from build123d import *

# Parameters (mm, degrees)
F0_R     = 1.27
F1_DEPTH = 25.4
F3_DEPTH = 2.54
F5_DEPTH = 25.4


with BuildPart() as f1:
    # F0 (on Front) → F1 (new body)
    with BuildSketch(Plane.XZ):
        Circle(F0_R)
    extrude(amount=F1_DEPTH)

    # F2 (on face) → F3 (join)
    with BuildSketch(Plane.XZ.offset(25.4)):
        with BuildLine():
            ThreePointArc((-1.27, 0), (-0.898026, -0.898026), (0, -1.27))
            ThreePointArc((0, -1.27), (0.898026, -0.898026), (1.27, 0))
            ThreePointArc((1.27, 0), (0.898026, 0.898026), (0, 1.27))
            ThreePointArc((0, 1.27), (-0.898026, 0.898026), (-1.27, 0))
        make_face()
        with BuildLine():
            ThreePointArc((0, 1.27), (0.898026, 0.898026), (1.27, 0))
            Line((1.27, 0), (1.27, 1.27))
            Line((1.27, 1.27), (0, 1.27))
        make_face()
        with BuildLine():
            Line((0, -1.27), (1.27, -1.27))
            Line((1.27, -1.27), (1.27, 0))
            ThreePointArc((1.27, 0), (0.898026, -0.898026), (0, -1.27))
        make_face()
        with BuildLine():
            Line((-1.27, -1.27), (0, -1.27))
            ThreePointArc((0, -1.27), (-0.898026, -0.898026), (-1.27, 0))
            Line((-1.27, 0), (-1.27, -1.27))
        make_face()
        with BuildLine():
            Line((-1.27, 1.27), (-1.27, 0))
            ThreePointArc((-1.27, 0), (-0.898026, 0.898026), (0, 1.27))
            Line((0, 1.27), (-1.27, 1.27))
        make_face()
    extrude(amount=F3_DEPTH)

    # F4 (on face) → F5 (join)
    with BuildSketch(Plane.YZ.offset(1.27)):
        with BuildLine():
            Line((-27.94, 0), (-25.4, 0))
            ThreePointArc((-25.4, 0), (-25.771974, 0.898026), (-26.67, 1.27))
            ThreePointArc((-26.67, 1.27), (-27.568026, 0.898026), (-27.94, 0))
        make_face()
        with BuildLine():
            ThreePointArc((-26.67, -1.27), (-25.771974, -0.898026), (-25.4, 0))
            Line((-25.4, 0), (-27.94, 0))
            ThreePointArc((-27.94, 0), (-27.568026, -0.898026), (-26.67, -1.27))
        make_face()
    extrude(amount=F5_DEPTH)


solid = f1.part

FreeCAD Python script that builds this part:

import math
import FreeCAD as App
import Part
import Sketcher

V = App.Vector
Q = App.Units.Quantity

doc = App.newDocument("Part")
params = doc.addObject("Spreadsheet::Sheet", "Params")
for row, (alias, value) in enumerate([
    ("sketch1_diameter", "0.1 in"),
    ("pad1_length", "1 in"),
    ("sketch2_width", "0.1 in"),
    ("pad2_length", "0.1 in"),
    ("sketch3_radius", "0.0499999 in"),
    ("pad3_length", "1 in"),
], start=1):
    params.set(f"A{row}", alias)
    params.set(f"B{row}", "=" + value)
    params.setAlias(f"B{row}", alias)

body = doc.addObject("PartDesign::Body", "Body")

# Sketch on XZ plane
sketch1 = body.newObject("Sketcher::SketchObject", "Sketch")
sketch1.AttachmentSupport = (doc.getObject("XZ_Plane"), [""])
sketch1.MapMode = "FlatFace"
sketch1.addGeometry(Part.Circle(V(0, 0, 0), V(0, 0, 1), 1.27), False)
sketch1.addConstraint(Sketcher.Constraint("Coincident", 0, 3, -1, 1))
sketch1.addConstraint(Sketcher.Constraint("Diameter", 0, Q("0.1 in")))
sketch1.setExpression("Constraints[1]", "Params.sketch1_diameter")
pad1 = body.newObject("PartDesign::Pad", "Pad")
pad1.Profile = sketch1
pad1.setExpression("Length", "Params.pad1_length")

# Sketch on XZ plane
sketch2 = body.newObject("Sketcher::SketchObject", "Sketch001")
sketch2.AttachmentSupport = (doc.getObject("XZ_Plane"), [""])
sketch2.MapMode = "FlatFace"
sketch2.AttachmentOffset = App.Placement(V(0, 0, 1 * 25.4), App.Rotation())
sketch2.addGeometry(Part.LineSegment(V(1.27, -1.27, 0), V(1.27, 1.27, 0)), False)
sketch2.addGeometry(Part.LineSegment(V(1.27, 1.27, 0), V(-1.27, 1.27, 0)), False)
sketch2.addGeometry(Part.LineSegment(V(-1.27, 1.27, 0), V(-1.27, -1.27, 0)), False)
sketch2.addGeometry(Part.LineSegment(V(-1.27, -1.27, 0), V(1.27, -1.27, 0)), False)
sketch2.addConstraint(Sketcher.Constraint("Coincident", 0, 2, 1, 1))
sketch2.addConstraint(Sketcher.Constraint("Coincident", 1, 2, 2, 1))
sketch2.addConstraint(Sketcher.Constraint("Coincident", 2, 2, 3, 1))
sketch2.addConstraint(Sketcher.Constraint("Coincident", 3, 2, 0, 1))
sketch2.addConstraint(Sketcher.Constraint("Vertical", 0))
sketch2.addConstraint(Sketcher.Constraint("Horizontal", 1))
sketch2.addConstraint(Sketcher.Constraint("Vertical", 2))
sketch2.addConstraint(Sketcher.Constraint("Horizontal", 3))
sketch2.addConstraint(Sketcher.Constraint("Symmetric", 0, 2, 2, 2, -1, 1))
sketch2.addConstraint(Sketcher.Constraint("Equal", 3, 0))
sketch2.addConstraint(Sketcher.Constraint("DistanceX", 1, 2, 1, 1, Q("0.1 in")))
sketch2.setExpression("Constraints[10]", "Params.sketch2_width")
pad2 = body.newObject("PartDesign::Pad", "Pad001")
pad2.Profile = sketch2
pad2.setExpression("Length", "Params.pad2_length")

# Sketch on YZ plane
sketch3 = body.newObject("Sketcher::SketchObject", "Sketch002")
sketch3.AttachmentSupport = (doc.getObject("YZ_Plane"), [""])
sketch3.MapMode = "FlatFace"
sketch3.AttachmentOffset = App.Placement(V(0, 0, 0.05 * 25.4), App.Rotation())
sketch3.addGeometry(Part.ArcOfCircle(Part.Circle(V(-26.669999, 0.000001, 0), V(0, 0, 1), 1.269999), math.radians(-0.00006), math.radians(90.00006)), False)
sketch3.addGeometry(Part.ArcOfCircle(Part.Circle(V(-26.670001, 0.000001, 0), V(0, 0, 1), 1.269999), math.radians(89.99994), math.radians(180.00006)), False)
sketch3.addGeometry(Part.ArcOfCircle(Part.Circle(V(-26.670001, -0.000001, 0), V(0, 0, 1), 1.269999), math.radians(179.99994), math.radians(270.00006)), False)
sketch3.addGeometry(Part.ArcOfCircle(Part.Circle(V(-26.669999, -0.000001, 0), V(0, 0, 1), 1.269999), math.radians(-90.00006), math.radians(0.00006)), False)
sketch3.addConstraint(Sketcher.Constraint("Coincident", 0, 2, 1, 1))
sketch3.addConstraint(Sketcher.Constraint("Coincident", 1, 2, 2, 1))
sketch3.addConstraint(Sketcher.Constraint("Coincident", 2, 2, 3, 1))
sketch3.addConstraint(Sketcher.Constraint("Coincident", 3, 2, 0, 1))
sketch3.addConstraint(Sketcher.Constraint("Coincident", 1, 3, 0, 3))
sketch3.addConstraint(Sketcher.Constraint("Coincident", 2, 3, 0, 3))
sketch3.addConstraint(Sketcher.Constraint("Equal", 2, 3))
sketch3.addConstraint(Sketcher.Constraint("Symmetric", 0, 2, 2, 2, -1))
sketch3.addConstraint(Sketcher.Constraint("PointOnObject", 1, 2, -1))
sketch3.addConstraint(Sketcher.Constraint("PointOnObject", 3, 2, -1))
sketch3.addConstraint(Sketcher.Constraint("Vertical", 3, 3, 0, 2))
sketch3.addConstraint(Sketcher.Constraint("Radius", 0, Q("0.0499999 in")))
sketch3.addConstraint(Sketcher.Constraint("DistanceX", 3, 2, -1, 1, Q("1 in")))
sketch3.setExpression("Constraints[11]", "Params.sketch3_radius")
pad3 = body.newObject("PartDesign::Pad", "Pad002")
pad3.Profile = sketch3
pad3.setExpression("Length", "Params.pad3_length")

doc.recompute()
